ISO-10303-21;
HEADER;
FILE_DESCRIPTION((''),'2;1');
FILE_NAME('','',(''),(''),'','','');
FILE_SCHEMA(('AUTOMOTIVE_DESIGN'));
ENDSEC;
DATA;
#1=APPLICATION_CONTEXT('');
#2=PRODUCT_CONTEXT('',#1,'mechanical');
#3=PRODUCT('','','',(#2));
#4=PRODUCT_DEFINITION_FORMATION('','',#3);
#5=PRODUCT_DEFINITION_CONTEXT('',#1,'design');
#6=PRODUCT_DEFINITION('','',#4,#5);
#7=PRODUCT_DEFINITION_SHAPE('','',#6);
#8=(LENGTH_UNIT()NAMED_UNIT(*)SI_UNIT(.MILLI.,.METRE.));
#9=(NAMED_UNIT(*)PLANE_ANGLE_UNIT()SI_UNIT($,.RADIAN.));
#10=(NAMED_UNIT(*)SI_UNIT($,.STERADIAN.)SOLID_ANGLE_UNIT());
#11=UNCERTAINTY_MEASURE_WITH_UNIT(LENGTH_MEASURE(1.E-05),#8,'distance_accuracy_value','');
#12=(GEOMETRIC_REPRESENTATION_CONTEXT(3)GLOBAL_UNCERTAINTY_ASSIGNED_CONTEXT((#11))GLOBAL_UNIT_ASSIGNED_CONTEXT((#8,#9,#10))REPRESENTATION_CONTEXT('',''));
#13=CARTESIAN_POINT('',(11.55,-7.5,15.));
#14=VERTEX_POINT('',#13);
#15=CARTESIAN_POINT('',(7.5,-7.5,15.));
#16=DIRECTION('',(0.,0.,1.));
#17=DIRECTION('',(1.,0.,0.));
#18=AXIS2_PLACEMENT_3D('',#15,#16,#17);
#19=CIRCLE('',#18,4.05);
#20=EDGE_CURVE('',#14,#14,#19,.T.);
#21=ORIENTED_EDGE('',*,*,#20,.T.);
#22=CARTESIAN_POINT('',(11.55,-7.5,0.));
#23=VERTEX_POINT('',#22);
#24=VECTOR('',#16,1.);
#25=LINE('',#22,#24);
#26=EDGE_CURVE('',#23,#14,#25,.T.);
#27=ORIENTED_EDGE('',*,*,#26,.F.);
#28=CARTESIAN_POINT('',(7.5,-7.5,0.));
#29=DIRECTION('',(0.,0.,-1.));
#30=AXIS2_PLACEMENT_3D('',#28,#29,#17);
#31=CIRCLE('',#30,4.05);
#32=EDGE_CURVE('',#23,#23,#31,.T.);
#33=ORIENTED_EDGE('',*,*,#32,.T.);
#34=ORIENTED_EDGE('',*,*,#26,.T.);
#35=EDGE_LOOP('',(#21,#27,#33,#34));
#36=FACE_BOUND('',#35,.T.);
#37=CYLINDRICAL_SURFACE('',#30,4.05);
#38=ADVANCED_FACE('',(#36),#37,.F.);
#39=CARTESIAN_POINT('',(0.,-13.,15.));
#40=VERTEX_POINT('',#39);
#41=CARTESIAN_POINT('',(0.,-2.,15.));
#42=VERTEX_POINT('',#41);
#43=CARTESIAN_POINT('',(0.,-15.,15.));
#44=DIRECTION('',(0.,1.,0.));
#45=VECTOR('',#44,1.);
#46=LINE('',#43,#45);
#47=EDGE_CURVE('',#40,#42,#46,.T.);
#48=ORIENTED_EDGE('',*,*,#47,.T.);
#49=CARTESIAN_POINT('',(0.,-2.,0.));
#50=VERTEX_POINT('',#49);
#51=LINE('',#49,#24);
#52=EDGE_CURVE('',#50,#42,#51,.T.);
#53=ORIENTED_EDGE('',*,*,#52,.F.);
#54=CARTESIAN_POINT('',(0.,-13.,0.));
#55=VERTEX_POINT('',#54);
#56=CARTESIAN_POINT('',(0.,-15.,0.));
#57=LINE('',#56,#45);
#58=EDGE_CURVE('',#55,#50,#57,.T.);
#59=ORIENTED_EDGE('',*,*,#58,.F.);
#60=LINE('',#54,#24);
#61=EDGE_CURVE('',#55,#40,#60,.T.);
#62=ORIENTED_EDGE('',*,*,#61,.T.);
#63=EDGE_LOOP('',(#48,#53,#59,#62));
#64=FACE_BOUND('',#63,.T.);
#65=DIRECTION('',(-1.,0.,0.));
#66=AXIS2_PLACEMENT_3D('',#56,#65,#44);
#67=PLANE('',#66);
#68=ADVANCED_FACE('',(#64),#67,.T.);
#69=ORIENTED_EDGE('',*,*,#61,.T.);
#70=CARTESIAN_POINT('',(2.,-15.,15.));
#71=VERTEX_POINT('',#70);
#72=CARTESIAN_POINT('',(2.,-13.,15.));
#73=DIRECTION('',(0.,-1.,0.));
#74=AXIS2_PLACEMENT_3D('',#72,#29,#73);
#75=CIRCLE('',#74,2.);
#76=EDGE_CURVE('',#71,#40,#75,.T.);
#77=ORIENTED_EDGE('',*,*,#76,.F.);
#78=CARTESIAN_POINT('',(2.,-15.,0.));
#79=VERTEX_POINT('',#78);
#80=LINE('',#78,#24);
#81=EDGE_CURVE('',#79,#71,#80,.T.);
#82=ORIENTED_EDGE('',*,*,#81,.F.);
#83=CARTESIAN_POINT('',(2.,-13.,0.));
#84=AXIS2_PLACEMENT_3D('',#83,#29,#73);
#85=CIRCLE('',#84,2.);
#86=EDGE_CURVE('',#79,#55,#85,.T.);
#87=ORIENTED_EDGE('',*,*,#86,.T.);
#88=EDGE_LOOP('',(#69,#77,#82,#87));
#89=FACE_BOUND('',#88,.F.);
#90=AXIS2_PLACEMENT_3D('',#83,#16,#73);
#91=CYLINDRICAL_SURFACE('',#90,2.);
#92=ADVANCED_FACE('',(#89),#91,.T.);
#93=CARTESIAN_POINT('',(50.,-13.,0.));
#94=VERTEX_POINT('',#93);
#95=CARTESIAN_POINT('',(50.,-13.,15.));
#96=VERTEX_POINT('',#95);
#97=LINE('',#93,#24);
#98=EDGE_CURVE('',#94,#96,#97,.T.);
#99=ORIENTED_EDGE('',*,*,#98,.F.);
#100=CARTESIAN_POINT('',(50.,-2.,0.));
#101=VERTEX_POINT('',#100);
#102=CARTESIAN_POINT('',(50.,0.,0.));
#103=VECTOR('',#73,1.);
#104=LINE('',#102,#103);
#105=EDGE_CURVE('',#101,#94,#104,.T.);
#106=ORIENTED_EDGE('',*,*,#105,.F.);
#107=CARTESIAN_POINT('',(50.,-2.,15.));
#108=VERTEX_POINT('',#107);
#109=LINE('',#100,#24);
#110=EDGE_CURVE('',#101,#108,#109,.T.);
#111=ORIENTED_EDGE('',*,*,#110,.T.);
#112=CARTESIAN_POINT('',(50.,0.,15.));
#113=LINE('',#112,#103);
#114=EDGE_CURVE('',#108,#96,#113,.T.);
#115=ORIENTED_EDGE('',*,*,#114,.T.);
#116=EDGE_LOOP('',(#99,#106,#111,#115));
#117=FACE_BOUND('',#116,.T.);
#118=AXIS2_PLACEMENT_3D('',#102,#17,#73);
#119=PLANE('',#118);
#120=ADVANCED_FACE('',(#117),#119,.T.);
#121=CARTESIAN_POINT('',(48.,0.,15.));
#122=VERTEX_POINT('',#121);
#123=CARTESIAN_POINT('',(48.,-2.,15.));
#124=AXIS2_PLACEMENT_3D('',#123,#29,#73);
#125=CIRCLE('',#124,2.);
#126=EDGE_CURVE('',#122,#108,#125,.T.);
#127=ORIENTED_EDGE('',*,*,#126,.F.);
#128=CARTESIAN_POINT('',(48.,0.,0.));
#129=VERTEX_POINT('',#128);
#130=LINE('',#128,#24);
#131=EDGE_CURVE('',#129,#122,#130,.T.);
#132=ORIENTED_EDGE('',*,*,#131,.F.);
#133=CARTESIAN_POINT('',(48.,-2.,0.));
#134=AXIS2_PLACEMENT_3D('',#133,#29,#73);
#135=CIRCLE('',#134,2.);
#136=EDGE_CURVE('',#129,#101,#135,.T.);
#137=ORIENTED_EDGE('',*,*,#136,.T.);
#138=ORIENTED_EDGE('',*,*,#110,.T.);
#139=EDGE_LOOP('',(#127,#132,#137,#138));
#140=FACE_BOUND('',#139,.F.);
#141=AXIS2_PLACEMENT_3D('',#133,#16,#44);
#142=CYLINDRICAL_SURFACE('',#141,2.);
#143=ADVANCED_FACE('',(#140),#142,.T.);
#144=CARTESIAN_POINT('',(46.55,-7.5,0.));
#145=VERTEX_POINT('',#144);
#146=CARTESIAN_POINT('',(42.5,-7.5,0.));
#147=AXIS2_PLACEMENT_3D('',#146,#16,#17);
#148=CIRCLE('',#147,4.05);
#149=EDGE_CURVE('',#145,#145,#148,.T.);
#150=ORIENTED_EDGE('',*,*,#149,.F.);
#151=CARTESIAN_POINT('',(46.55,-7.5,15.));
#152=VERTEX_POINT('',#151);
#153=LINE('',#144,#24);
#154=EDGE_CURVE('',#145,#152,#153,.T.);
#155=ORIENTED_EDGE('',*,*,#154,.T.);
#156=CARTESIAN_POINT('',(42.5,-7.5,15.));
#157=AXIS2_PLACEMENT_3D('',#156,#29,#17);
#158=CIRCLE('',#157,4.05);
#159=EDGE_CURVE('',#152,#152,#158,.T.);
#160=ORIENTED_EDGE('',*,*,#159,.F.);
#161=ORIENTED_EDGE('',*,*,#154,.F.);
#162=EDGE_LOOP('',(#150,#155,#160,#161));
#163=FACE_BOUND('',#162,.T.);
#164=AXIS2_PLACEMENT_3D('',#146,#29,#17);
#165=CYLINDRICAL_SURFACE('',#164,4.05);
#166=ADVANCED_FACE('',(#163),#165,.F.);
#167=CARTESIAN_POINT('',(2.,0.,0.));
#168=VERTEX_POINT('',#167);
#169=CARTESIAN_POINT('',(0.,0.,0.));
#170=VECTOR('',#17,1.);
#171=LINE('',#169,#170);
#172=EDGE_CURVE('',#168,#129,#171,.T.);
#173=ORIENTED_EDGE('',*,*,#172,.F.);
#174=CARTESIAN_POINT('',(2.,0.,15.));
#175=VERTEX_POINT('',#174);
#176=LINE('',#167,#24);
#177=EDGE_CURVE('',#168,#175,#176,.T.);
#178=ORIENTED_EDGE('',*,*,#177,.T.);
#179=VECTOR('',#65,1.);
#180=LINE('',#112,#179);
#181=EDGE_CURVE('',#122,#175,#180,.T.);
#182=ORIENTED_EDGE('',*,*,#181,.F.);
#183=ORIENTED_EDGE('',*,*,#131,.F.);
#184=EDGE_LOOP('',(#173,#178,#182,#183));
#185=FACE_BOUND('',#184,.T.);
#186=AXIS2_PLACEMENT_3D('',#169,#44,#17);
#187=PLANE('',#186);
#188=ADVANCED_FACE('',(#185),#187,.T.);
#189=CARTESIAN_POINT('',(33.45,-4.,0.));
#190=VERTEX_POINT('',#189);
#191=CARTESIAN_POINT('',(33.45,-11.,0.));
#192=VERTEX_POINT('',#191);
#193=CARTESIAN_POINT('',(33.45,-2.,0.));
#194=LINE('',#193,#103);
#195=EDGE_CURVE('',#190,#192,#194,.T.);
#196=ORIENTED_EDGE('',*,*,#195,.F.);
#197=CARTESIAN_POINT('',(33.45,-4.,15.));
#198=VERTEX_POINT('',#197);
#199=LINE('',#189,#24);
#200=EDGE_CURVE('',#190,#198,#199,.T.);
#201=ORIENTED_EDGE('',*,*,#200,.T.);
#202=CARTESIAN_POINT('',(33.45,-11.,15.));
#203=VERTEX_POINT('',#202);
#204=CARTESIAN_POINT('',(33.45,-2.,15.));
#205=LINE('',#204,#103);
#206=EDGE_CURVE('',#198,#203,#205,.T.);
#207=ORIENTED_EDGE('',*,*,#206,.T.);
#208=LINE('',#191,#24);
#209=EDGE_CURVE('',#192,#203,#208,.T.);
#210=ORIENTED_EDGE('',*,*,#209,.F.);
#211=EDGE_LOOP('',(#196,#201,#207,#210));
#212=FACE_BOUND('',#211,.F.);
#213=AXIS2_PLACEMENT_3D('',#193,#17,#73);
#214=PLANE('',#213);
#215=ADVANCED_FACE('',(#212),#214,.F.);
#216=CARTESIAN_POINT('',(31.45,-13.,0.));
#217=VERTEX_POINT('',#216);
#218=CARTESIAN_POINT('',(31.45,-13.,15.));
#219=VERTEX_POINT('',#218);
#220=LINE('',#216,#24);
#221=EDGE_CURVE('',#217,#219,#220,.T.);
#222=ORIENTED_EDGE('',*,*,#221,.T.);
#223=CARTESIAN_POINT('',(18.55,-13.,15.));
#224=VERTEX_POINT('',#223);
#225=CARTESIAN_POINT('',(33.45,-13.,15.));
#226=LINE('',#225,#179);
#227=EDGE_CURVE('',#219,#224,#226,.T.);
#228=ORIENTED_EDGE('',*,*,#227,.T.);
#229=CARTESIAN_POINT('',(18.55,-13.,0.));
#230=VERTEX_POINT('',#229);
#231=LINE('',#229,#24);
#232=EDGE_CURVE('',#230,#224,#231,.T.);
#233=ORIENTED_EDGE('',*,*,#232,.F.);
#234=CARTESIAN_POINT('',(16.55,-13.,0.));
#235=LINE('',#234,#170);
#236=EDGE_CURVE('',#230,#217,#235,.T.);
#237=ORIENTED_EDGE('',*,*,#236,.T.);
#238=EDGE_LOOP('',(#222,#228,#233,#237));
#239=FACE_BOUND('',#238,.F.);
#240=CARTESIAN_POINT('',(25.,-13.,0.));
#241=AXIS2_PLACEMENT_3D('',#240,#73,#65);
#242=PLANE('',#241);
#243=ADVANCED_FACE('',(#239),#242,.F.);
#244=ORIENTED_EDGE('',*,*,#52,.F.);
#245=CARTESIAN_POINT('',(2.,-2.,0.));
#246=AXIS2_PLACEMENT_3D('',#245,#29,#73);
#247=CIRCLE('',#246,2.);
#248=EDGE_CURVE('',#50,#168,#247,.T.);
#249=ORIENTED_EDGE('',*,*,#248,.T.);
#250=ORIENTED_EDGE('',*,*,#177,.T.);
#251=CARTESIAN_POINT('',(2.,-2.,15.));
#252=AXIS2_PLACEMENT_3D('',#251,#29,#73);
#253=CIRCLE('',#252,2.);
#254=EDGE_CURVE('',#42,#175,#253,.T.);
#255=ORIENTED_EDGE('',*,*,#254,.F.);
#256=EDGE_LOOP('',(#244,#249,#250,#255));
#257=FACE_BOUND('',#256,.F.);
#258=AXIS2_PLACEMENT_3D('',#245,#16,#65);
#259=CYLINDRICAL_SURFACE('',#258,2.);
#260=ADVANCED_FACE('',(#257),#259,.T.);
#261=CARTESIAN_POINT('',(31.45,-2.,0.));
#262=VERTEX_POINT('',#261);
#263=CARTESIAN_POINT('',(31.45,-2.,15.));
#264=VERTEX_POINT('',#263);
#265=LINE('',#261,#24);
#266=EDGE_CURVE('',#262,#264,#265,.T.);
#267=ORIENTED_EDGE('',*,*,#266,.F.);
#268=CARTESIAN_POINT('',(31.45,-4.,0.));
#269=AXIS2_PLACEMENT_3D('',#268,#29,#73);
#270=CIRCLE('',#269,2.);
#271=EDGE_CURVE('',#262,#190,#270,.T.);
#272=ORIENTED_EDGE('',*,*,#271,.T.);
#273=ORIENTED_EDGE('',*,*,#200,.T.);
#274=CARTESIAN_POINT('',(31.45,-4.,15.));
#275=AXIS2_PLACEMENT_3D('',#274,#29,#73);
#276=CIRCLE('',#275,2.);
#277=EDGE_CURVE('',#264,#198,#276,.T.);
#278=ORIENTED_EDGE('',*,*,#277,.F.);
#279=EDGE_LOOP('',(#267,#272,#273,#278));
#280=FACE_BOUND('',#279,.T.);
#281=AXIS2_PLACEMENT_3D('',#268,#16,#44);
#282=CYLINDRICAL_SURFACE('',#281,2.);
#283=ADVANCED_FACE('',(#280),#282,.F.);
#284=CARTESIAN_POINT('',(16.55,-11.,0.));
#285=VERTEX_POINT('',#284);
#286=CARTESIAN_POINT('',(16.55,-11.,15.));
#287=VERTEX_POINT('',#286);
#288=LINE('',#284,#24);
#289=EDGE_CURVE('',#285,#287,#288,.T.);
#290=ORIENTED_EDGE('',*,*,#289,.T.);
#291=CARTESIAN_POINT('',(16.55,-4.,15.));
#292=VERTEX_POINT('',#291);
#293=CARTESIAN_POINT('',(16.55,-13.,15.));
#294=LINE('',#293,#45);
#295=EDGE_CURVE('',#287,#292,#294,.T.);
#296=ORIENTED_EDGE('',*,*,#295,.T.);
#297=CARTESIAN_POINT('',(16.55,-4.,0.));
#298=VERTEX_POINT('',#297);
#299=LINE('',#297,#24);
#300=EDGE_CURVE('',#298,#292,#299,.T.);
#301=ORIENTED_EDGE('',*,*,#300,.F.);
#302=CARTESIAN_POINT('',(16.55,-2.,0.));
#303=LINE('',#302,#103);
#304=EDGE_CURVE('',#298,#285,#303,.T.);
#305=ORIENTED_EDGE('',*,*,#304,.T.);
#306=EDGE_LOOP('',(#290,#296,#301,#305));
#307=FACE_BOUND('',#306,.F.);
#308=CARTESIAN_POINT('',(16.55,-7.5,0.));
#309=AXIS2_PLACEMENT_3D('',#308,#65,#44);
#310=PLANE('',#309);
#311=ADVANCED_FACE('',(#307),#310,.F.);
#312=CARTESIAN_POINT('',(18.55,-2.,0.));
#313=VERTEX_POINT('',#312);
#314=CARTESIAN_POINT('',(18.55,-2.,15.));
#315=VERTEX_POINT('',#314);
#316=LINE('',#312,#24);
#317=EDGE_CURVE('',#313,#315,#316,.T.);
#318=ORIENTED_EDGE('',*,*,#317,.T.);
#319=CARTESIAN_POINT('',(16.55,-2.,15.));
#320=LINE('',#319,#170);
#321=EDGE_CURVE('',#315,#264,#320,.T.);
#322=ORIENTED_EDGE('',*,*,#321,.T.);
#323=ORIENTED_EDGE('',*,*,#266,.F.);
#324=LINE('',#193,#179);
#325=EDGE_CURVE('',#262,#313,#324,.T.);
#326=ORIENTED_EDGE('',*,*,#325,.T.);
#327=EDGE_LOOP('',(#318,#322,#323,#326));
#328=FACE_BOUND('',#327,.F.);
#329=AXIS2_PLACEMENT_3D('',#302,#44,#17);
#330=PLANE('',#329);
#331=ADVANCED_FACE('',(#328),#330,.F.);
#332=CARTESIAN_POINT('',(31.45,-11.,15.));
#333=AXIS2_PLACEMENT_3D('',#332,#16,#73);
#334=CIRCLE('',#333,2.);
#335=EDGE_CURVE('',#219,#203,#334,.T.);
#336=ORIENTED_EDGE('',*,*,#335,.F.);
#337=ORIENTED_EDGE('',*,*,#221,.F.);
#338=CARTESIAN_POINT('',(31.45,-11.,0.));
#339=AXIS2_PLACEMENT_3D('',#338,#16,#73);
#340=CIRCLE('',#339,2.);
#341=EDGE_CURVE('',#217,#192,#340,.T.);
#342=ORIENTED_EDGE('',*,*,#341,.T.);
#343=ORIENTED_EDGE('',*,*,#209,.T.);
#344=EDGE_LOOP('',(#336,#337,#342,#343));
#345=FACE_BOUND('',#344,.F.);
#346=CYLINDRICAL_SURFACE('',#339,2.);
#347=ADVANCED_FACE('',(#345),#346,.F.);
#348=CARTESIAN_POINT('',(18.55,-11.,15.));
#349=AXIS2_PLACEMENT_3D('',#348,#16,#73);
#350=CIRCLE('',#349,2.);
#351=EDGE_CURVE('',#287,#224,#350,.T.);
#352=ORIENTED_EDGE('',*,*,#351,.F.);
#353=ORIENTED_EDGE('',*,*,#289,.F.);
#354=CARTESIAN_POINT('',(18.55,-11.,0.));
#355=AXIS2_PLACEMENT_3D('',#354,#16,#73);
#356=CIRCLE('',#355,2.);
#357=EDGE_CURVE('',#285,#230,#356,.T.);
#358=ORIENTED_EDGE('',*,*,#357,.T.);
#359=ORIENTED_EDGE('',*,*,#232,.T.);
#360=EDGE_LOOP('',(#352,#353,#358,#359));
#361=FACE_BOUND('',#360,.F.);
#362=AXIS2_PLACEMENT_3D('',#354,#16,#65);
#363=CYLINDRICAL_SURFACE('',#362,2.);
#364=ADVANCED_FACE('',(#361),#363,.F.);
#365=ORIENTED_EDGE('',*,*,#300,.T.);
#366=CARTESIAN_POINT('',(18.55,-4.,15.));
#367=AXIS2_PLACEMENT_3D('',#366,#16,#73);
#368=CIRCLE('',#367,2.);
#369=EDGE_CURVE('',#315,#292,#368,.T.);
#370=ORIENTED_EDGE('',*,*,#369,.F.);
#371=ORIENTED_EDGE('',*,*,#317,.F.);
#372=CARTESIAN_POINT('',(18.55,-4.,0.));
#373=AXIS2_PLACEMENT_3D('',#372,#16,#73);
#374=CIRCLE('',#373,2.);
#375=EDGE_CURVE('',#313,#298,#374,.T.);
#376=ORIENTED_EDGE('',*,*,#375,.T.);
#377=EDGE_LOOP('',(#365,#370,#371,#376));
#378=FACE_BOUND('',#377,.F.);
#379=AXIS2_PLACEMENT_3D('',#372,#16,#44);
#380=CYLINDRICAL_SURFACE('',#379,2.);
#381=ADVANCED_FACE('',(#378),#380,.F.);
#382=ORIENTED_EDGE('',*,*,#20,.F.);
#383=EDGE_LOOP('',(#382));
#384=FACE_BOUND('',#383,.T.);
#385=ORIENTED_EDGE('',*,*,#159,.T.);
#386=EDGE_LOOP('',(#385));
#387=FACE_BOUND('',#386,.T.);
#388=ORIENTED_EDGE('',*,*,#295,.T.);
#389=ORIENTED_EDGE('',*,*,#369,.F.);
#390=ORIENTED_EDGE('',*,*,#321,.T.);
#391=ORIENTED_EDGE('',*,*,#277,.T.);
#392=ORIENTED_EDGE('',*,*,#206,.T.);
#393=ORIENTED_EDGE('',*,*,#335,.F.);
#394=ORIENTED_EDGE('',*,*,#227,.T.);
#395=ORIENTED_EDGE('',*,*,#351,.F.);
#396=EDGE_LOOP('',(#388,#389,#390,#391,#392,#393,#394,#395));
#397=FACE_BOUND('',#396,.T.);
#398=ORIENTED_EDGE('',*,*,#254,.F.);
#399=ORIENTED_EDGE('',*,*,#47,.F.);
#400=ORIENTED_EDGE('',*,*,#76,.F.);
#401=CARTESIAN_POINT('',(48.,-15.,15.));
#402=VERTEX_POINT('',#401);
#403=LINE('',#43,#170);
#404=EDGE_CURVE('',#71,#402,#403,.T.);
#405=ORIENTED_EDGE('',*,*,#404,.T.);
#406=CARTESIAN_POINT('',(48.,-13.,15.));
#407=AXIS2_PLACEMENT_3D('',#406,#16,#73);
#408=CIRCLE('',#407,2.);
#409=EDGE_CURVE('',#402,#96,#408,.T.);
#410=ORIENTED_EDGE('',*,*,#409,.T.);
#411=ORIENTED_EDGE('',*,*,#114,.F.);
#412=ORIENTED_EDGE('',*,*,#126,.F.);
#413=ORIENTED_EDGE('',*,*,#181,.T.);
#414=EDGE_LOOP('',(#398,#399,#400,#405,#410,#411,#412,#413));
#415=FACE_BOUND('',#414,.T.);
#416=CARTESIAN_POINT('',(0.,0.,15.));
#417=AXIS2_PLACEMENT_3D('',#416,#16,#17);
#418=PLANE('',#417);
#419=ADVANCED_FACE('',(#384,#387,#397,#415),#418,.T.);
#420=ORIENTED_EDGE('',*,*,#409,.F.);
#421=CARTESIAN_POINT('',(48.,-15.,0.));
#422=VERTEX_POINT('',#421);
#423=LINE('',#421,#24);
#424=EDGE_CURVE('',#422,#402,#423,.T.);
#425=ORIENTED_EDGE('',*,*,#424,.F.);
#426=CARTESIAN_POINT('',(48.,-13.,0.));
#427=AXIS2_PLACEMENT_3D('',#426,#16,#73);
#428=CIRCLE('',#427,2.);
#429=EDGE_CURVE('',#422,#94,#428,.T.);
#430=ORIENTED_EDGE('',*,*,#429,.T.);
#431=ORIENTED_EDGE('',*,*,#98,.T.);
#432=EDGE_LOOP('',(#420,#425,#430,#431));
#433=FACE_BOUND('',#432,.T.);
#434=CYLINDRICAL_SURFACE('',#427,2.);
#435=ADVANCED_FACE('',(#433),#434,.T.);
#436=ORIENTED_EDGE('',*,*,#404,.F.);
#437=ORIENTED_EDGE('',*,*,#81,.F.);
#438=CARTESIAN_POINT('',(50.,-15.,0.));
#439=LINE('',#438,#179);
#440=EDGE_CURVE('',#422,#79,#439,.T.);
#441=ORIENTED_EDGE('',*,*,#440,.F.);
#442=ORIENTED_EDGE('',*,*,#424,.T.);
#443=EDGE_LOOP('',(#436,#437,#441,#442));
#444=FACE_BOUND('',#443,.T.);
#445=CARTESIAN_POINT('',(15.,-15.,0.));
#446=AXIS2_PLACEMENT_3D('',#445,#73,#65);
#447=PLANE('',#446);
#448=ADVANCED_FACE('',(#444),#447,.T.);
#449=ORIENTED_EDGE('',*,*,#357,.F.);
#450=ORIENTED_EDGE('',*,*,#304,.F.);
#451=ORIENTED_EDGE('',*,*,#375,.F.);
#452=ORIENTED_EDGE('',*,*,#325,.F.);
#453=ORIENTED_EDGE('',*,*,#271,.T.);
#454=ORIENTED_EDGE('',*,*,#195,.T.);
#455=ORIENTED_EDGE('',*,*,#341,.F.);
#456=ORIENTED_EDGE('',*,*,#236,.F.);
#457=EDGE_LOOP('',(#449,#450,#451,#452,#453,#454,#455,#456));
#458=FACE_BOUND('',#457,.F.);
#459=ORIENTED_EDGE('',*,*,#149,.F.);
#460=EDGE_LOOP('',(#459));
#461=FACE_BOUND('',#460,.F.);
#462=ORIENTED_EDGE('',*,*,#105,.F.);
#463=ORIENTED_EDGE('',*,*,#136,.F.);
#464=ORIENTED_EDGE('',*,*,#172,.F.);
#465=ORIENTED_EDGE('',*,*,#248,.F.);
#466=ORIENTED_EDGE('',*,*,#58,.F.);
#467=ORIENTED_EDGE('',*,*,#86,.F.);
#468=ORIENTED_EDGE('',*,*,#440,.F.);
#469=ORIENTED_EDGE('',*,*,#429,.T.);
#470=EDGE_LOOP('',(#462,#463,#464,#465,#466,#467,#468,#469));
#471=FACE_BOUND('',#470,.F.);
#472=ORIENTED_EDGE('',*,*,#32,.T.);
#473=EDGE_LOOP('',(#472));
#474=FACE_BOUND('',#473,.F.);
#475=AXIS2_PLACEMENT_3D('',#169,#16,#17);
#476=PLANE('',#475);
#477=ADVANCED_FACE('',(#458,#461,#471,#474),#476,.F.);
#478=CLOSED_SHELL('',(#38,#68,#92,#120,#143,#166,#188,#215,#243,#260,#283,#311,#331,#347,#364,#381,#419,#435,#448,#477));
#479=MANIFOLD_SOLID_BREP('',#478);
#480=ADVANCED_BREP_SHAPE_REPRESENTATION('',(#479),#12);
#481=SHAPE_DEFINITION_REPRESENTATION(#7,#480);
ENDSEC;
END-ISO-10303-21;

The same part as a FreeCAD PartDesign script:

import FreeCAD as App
import Part
import Sketcher
from FreeCAD import Vector
Q = App.Units.Quantity


def edges_at(feature, points):
    """Names of the edges that pass closest to the given points."""
    edges = feature.Shape.Edges
    near = lambda p: min(range(len(edges)), key=lambda i: edges[i].distToShape(Part.Vertex(*p))[0])
    return sorted({f"Edge{near(p) + 1}" for p in points})

doc = App.newDocument("Part")
body = doc.addObject("PartDesign::Body", "Body")

# Sketch on XY plane
sketch1 = body.newObject("Sketcher::SketchObject", "Sketch")
sketch1.AttachmentSupport = (doc.getObject("XY_Plane"), [""])
sketch1.MapMode = "FlatFace"
sketch1.addGeometry([
    Part.LineSegment(Vector(0, -15, 0), Vector(50, -15, 0)),  # 0
    Part.LineSegment(Vector(50, -15, 0), Vector(50, 0, 0)),  # 1
    Part.LineSegment(Vector(50, 0, 0), Vector(0, 0, 0)),  # 2
    Part.LineSegment(Vector(0, 0, 0), Vector(0, -15, 0)),  # 3
    Part.Circle(Vector(7.5, -7.5, 0), Vector(0, 0, 1), 4),  # 4
    Part.LineSegment(Vector(16.6, -2, 0), Vector(33.5, -2, 0)),  # 5
    Part.LineSegment(Vector(33.5, -2, 0), Vector(33.5, -13, 0)),  # 6
    Part.LineSegment(Vector(33.5, -13, 0), Vector(16.6, -13, 0)),  # 7
    Part.LineSegment(Vector(16.6, -13, 0), Vector(16.6, -2, 0)),  # 8
    Part.Circle(Vector(42.5, -7.5, 0), Vector(0, 0, 1), 4),  # 9
], False)
sketch1.addConstraint([
    Sketcher.Constraint("Coincident", 0, 2, 1, 1),
    Sketcher.Constraint("Coincident", 1, 2, 2, 1),
    Sketcher.Constraint("Coincident", 2, 2, 3, 1),
    Sketcher.Constraint("Coincident", 3, 2, 0, 1),
    Sketcher.Constraint("Coincident", 5, 2, 6, 1),
    Sketcher.Constraint("Coincident", 6, 2, 7, 1),
    Sketcher.Constraint("Coincident", 7, 2, 8, 1),
    Sketcher.Constraint("Coincident", 8, 2, 5, 1),
    Sketcher.Constraint("Horizontal", 0),
    Sketcher.Constraint("Vertical", 1),
    Sketcher.Constraint("Horizontal", 2),
    Sketcher.Constraint("Vertical", 3),
    Sketcher.Constraint("Horizontal", 5),
    Sketcher.Constraint("Vertical", 6),
    Sketcher.Constraint("Horizontal", 7),
    Sketcher.Constraint("Vertical", 8),
    Sketcher.Constraint("Coincident", 2, 2, -1, 1),
    Sketcher.Constraint("Equal", 4, 9),
    Sketcher.Constraint("Horizontal", 4, 3, 9, 3),
    Sketcher.Constraint("Diameter", 4, Q("8.1 mm")),
    Sketcher.Constraint("DistanceX", 0, 1, 0, 2, Q("50 mm")),
    Sketcher.Constraint("DistanceY", 1, 1, 1, 2, Q("15 mm")),
    Sketcher.Constraint("DistanceY", 5, 2, -1, 1, Q("2 mm")),
    Sketcher.Constraint("DistanceY", 0, 2, 6, 2, Q("2 mm")),
    Sketcher.Constraint("DistanceX", 5, 1, 5, 2, Q("16.9 mm")),
    Sketcher.Constraint("DistanceX", 4, 3, 9, 3, Q("35 mm")),
    Sketcher.Constraint("DistanceX", -1, 1, 4, 3, Q("7.5 mm")),
    Sketcher.Constraint("DistanceY", 4, 3, -1, 1, Q("7.5 mm")),
    Sketcher.Constraint("DistanceX", -1, 1, 5, 2, Q("33.45 mm")),
])
pad1 = body.newObject("PartDesign::Pad", "Pad")
pad1.Profile = sketch1
pad1.Length = 15
doc.recompute()

fillet = body.newObject("PartDesign::Fillet", "Fillet")
fillet.Base = (pad1, edges_at(pad1, [
    (50, 0, 7.5),
    (50, -15, 7.5),
    (0, 0, 7.5),
    (0, -15, 7.5),
    (16.55, -13, 7.5),
    (16.55, -2, 7.5),
    (33.45, -2, 7.5),
    (33.45, -13, 7.5),
]))
fillet.Radius = 2

doc.recompute()
